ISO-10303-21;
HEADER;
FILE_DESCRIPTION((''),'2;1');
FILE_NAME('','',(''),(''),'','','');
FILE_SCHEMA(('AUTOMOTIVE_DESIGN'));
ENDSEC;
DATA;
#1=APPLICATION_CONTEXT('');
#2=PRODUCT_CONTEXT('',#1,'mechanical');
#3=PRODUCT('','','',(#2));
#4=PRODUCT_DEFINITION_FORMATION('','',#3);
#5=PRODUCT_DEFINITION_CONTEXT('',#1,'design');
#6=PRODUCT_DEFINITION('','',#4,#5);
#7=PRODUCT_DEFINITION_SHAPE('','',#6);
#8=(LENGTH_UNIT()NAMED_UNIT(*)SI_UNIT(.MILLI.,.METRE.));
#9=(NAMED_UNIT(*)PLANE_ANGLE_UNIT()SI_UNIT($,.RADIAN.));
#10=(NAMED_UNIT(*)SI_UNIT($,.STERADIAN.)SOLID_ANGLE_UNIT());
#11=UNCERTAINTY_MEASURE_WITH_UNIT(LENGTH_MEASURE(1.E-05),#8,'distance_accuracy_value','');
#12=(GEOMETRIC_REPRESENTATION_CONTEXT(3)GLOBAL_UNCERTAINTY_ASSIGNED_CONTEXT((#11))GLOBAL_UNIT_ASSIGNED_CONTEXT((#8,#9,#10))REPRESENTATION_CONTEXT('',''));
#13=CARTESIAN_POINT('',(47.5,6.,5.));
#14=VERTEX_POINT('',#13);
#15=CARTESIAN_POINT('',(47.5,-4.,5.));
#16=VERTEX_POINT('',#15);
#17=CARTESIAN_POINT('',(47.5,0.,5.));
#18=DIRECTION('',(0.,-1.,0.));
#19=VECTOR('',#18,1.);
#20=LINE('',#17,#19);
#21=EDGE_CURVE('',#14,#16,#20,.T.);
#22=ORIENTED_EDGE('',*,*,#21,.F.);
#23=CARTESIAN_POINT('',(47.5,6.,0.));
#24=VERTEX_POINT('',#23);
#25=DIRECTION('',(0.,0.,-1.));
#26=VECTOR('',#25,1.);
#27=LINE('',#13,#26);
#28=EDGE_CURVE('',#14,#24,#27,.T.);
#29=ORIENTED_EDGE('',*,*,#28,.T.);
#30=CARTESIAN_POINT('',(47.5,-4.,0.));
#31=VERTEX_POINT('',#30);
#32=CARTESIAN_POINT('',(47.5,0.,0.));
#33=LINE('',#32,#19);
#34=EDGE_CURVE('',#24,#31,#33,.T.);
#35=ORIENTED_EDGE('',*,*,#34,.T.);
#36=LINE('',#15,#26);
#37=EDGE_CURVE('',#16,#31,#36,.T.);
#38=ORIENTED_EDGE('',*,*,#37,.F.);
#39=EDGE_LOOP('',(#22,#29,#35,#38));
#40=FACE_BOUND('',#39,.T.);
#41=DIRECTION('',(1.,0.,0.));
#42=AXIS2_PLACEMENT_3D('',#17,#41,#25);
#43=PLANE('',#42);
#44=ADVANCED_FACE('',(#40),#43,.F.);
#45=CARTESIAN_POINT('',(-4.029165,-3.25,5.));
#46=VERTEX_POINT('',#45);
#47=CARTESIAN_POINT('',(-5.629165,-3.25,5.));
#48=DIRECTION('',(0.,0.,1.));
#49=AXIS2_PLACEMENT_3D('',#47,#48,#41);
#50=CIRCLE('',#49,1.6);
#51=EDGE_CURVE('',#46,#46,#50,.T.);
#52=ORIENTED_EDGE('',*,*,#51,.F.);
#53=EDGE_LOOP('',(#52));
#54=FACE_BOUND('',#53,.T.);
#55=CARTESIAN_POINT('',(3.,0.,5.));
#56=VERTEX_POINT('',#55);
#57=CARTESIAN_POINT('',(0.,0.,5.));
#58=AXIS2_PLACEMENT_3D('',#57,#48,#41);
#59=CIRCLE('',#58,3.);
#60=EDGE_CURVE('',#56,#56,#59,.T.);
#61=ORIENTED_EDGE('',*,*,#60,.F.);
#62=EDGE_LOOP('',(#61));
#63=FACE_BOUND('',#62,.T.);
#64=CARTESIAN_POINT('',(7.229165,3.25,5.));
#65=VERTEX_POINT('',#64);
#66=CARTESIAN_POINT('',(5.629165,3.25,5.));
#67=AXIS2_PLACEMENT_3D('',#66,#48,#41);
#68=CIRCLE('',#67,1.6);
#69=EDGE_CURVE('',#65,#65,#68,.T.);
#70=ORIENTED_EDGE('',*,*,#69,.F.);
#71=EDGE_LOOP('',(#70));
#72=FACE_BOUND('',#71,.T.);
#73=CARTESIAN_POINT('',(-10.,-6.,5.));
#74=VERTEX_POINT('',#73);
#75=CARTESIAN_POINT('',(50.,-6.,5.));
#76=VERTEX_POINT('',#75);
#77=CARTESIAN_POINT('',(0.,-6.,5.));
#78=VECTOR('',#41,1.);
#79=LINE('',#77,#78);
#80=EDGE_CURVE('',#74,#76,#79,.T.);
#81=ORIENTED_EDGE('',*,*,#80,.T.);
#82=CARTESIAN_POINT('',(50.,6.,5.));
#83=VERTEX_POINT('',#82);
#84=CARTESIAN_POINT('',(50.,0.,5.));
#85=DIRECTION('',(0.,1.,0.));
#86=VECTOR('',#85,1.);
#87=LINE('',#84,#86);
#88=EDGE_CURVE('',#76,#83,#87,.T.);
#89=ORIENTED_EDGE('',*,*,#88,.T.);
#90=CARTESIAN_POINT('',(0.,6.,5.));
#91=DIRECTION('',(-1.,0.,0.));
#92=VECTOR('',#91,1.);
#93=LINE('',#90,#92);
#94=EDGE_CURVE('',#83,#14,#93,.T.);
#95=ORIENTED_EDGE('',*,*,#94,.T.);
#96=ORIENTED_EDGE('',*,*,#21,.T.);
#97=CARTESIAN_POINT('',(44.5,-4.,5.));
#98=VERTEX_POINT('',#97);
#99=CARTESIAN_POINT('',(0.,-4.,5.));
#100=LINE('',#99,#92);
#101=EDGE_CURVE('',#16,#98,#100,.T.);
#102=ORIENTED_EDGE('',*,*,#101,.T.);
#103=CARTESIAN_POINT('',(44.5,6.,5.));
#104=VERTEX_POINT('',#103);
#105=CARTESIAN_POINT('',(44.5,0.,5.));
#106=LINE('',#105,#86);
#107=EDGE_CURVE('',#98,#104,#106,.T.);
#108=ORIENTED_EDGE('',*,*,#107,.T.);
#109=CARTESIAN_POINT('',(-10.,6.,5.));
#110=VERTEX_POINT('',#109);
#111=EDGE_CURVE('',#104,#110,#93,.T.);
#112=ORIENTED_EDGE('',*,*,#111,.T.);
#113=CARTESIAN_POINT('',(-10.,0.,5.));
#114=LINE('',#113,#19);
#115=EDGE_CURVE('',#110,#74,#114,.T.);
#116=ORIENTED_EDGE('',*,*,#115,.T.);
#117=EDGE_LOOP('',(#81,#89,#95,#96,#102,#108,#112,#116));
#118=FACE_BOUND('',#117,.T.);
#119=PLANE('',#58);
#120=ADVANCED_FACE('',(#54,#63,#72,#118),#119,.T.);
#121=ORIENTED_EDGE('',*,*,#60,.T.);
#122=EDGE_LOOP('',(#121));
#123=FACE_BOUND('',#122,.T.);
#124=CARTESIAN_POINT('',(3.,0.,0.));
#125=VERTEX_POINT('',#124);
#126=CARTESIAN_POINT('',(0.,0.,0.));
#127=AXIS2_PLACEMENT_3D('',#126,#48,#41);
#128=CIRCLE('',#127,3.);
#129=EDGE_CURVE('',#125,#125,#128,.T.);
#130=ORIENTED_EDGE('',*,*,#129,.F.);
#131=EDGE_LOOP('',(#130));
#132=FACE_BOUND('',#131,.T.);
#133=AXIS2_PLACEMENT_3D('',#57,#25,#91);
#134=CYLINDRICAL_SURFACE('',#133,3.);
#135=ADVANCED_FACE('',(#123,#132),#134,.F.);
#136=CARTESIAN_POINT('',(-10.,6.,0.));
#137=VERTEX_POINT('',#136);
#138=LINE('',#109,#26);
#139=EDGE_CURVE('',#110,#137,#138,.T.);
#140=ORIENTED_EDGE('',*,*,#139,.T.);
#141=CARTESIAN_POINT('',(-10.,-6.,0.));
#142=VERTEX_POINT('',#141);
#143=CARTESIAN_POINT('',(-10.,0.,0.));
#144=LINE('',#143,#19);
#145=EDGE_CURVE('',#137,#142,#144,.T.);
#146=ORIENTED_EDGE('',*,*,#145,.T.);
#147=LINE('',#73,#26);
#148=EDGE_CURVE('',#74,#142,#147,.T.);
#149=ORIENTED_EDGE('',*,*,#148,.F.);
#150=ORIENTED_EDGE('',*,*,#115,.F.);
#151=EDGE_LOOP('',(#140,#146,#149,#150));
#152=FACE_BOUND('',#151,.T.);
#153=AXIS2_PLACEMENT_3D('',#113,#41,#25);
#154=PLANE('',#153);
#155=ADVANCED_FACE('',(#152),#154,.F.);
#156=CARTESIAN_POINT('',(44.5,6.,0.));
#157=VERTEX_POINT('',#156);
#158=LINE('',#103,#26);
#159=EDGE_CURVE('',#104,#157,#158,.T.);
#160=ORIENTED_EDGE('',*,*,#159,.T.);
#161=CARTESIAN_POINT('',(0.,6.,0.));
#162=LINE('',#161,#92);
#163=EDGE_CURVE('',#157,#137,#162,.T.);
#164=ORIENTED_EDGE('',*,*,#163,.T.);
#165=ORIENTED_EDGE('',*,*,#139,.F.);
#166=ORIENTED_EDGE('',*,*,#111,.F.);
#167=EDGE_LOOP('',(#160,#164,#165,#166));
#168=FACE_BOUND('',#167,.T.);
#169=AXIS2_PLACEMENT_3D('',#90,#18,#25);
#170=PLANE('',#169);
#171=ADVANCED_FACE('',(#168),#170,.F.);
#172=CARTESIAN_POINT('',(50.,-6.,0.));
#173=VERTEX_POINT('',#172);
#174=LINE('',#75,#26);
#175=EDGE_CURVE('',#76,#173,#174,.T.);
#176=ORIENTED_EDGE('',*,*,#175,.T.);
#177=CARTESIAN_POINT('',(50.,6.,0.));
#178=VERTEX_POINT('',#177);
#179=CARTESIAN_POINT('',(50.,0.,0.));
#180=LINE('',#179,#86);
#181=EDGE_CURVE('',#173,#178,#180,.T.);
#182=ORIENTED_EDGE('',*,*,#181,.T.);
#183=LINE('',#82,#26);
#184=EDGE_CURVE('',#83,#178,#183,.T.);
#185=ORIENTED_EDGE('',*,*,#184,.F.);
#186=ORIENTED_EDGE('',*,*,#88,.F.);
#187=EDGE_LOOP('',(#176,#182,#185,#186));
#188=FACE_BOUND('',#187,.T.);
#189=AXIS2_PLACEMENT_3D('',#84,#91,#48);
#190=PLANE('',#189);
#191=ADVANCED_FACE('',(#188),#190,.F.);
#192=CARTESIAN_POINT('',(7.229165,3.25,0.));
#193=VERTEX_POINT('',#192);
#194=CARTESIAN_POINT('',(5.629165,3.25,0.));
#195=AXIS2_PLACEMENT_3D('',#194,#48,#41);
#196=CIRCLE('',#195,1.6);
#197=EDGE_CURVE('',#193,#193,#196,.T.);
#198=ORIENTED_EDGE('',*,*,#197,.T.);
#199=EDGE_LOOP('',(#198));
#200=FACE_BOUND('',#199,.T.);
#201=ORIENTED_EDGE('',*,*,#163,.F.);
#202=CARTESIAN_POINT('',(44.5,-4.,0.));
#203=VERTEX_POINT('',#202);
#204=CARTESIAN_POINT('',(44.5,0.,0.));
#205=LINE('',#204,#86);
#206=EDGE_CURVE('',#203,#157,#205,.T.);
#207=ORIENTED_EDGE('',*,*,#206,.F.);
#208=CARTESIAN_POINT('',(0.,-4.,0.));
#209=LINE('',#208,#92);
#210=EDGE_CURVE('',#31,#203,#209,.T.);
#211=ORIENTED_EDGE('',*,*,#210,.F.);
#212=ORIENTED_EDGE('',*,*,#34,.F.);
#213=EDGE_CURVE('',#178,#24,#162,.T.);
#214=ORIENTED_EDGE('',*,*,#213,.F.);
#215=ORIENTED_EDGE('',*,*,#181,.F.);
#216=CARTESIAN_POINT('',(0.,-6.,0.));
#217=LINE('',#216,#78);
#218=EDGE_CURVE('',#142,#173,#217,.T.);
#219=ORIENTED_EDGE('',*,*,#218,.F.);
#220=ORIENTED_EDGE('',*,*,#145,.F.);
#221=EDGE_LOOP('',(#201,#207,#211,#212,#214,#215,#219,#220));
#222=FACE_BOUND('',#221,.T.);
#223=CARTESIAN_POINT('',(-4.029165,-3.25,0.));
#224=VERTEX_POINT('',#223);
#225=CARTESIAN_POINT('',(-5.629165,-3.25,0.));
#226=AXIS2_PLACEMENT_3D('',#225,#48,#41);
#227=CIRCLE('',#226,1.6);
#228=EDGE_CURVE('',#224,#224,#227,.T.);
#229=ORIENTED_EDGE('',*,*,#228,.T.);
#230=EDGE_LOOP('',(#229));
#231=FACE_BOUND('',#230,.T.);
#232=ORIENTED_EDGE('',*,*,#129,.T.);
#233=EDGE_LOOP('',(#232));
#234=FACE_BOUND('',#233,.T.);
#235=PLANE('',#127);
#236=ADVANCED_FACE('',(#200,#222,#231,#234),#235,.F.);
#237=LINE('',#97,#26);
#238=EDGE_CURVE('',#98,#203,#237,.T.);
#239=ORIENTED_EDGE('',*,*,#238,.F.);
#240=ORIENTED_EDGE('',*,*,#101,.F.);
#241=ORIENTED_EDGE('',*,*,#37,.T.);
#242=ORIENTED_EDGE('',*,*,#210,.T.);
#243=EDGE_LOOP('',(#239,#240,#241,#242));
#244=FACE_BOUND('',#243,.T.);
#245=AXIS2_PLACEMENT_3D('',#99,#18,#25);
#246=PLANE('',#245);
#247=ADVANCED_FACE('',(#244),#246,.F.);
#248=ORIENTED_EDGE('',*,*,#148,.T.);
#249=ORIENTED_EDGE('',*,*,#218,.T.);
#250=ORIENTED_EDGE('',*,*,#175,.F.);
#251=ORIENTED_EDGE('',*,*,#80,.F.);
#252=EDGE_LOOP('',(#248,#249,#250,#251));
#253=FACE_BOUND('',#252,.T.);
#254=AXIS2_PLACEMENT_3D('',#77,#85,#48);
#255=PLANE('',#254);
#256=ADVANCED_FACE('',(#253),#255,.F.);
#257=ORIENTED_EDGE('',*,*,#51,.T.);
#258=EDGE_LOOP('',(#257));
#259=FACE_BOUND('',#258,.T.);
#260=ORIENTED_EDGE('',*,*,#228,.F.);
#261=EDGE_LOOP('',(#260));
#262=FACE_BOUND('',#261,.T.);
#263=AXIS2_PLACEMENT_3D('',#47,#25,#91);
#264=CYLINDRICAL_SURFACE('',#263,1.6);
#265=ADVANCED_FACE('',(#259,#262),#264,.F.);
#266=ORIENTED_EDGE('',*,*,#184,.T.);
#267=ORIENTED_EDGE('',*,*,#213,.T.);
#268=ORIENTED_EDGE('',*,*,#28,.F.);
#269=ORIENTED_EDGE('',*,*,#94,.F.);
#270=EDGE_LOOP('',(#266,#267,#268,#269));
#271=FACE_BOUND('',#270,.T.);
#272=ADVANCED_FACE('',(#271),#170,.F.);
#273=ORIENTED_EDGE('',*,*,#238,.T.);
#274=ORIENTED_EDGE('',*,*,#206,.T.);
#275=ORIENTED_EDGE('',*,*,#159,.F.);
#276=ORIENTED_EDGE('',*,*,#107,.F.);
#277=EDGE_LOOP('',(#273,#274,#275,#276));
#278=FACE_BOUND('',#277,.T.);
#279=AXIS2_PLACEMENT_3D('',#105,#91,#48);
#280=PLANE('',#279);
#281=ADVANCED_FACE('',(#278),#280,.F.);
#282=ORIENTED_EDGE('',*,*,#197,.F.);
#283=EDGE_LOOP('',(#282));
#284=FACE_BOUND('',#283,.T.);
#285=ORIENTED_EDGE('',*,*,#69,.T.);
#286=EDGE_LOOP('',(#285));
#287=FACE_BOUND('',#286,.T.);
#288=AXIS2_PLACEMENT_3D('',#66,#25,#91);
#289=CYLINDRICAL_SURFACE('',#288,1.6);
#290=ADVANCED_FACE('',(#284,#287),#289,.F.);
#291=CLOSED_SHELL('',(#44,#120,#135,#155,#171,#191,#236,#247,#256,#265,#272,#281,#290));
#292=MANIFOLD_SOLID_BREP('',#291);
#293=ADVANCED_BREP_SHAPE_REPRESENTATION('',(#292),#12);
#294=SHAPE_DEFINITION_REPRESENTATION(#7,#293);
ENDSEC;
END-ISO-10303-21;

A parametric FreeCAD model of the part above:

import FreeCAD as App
import Part
import Sketcher
from FreeCAD import Vector


def add_polygon(sketch, points):
    """Adds a closed chain of lines whose ends are joined by coincident constraints."""
    first, n = sketch.GeometryCount, len(points)
    for a, b in zip(points, points[1:] + points[:1]):
        sketch.addGeometry(Part.LineSegment(App.Vector(*a, 0), App.Vector(*b, 0)), False)
    for i in range(n):
        sketch.addConstraint(Sketcher.Constraint("Coincident", first + i, 2, first + (i + 1) % n, 1))

doc = App.newDocument("Part")
body = doc.addObject("PartDesign::Body", "Body")

sketch1 = body.newObject("Sketcher::SketchObject", "Sketch")
sketch1.AttachmentSupport = (doc.getObject("XY_Plane"), [""])
sketch1.MapMode = "FlatFace"
add_polygon(sketch1, [(50, -6), (50, 6), (47.5, 6), (47.5, -4), (44.5, -4), (44.5, 6), (-10, 6), (-10, -6)])
sketch1.addGeometry(Part.Circle(Vector(-5.629165, -3.25, 0), Vector(0, 0, 1), 1.6), False)
sketch1.addGeometry(Part.Circle(Vector(0, 0, 0), Vector(0, 0, 1), 3), False)
sketch1.addGeometry(Part.Circle(Vector(5.629165, 3.25, 0), Vector(0, 0, 1), 1.6), False)
sketch1.addConstraint([
    Sketcher.Constraint("Vertical", 0),
    Sketcher.Constraint("Horizontal", 1),
    Sketcher.Constraint("Vertical", 2),
    Sketcher.Constraint("Horizontal", 3),
    Sketcher.Constraint("Vertical", 4),
    Sketcher.Constraint("Horizontal", 5),
    Sketcher.Constraint("Vertical", 6),
    Sketcher.Constraint("Horizontal", 7),
    Sketcher.Constraint("Coincident", 9, 3, -1, 1),
    Sketcher.Constraint("Equal", 8, 10),
    Sketcher.Constraint("Symmetric", 8, 3, 10, 3, -1, 1),
    Sketcher.Constraint("Horizontal", 1, 2, 4, 2),
    Sketcher.Constraint("Diameter", 9, 6.0),
    Sketcher.Constraint("Diameter", 8, 3.2),
    Sketcher.Constraint("DistanceX", 3, 2, 3, 1, 3.0),
    Sketcher.Constraint("DistanceX", 7, 1, 7, 2, 60.0),
    Sketcher.Constraint("DistanceY", 0, 1, 0, 2, 12.0),
    Sketcher.Constraint("DistanceY", 2, 2, 2, 1, 10.0),
    Sketcher.Constraint("DistanceX", 1, 2, 1, 1, 2.5),
    Sketcher.Constraint("DistanceX", -1, 1, 0, 2, 50.0),
    Sketcher.Constraint("DistanceY", -1, 1, 0, 2, 6.0),
    Sketcher.Constraint("DistanceY", 8, 3, 10, 3, 6.5),
    Sketcher.Constraint("DistanceX", 8, 3, 10, 3, 11.25833),
])
pad1 = body.newObject("PartDesign::Pad", "Pad")
pad1.Profile = sketch1
pad1.Length = 5

doc.recompute()
